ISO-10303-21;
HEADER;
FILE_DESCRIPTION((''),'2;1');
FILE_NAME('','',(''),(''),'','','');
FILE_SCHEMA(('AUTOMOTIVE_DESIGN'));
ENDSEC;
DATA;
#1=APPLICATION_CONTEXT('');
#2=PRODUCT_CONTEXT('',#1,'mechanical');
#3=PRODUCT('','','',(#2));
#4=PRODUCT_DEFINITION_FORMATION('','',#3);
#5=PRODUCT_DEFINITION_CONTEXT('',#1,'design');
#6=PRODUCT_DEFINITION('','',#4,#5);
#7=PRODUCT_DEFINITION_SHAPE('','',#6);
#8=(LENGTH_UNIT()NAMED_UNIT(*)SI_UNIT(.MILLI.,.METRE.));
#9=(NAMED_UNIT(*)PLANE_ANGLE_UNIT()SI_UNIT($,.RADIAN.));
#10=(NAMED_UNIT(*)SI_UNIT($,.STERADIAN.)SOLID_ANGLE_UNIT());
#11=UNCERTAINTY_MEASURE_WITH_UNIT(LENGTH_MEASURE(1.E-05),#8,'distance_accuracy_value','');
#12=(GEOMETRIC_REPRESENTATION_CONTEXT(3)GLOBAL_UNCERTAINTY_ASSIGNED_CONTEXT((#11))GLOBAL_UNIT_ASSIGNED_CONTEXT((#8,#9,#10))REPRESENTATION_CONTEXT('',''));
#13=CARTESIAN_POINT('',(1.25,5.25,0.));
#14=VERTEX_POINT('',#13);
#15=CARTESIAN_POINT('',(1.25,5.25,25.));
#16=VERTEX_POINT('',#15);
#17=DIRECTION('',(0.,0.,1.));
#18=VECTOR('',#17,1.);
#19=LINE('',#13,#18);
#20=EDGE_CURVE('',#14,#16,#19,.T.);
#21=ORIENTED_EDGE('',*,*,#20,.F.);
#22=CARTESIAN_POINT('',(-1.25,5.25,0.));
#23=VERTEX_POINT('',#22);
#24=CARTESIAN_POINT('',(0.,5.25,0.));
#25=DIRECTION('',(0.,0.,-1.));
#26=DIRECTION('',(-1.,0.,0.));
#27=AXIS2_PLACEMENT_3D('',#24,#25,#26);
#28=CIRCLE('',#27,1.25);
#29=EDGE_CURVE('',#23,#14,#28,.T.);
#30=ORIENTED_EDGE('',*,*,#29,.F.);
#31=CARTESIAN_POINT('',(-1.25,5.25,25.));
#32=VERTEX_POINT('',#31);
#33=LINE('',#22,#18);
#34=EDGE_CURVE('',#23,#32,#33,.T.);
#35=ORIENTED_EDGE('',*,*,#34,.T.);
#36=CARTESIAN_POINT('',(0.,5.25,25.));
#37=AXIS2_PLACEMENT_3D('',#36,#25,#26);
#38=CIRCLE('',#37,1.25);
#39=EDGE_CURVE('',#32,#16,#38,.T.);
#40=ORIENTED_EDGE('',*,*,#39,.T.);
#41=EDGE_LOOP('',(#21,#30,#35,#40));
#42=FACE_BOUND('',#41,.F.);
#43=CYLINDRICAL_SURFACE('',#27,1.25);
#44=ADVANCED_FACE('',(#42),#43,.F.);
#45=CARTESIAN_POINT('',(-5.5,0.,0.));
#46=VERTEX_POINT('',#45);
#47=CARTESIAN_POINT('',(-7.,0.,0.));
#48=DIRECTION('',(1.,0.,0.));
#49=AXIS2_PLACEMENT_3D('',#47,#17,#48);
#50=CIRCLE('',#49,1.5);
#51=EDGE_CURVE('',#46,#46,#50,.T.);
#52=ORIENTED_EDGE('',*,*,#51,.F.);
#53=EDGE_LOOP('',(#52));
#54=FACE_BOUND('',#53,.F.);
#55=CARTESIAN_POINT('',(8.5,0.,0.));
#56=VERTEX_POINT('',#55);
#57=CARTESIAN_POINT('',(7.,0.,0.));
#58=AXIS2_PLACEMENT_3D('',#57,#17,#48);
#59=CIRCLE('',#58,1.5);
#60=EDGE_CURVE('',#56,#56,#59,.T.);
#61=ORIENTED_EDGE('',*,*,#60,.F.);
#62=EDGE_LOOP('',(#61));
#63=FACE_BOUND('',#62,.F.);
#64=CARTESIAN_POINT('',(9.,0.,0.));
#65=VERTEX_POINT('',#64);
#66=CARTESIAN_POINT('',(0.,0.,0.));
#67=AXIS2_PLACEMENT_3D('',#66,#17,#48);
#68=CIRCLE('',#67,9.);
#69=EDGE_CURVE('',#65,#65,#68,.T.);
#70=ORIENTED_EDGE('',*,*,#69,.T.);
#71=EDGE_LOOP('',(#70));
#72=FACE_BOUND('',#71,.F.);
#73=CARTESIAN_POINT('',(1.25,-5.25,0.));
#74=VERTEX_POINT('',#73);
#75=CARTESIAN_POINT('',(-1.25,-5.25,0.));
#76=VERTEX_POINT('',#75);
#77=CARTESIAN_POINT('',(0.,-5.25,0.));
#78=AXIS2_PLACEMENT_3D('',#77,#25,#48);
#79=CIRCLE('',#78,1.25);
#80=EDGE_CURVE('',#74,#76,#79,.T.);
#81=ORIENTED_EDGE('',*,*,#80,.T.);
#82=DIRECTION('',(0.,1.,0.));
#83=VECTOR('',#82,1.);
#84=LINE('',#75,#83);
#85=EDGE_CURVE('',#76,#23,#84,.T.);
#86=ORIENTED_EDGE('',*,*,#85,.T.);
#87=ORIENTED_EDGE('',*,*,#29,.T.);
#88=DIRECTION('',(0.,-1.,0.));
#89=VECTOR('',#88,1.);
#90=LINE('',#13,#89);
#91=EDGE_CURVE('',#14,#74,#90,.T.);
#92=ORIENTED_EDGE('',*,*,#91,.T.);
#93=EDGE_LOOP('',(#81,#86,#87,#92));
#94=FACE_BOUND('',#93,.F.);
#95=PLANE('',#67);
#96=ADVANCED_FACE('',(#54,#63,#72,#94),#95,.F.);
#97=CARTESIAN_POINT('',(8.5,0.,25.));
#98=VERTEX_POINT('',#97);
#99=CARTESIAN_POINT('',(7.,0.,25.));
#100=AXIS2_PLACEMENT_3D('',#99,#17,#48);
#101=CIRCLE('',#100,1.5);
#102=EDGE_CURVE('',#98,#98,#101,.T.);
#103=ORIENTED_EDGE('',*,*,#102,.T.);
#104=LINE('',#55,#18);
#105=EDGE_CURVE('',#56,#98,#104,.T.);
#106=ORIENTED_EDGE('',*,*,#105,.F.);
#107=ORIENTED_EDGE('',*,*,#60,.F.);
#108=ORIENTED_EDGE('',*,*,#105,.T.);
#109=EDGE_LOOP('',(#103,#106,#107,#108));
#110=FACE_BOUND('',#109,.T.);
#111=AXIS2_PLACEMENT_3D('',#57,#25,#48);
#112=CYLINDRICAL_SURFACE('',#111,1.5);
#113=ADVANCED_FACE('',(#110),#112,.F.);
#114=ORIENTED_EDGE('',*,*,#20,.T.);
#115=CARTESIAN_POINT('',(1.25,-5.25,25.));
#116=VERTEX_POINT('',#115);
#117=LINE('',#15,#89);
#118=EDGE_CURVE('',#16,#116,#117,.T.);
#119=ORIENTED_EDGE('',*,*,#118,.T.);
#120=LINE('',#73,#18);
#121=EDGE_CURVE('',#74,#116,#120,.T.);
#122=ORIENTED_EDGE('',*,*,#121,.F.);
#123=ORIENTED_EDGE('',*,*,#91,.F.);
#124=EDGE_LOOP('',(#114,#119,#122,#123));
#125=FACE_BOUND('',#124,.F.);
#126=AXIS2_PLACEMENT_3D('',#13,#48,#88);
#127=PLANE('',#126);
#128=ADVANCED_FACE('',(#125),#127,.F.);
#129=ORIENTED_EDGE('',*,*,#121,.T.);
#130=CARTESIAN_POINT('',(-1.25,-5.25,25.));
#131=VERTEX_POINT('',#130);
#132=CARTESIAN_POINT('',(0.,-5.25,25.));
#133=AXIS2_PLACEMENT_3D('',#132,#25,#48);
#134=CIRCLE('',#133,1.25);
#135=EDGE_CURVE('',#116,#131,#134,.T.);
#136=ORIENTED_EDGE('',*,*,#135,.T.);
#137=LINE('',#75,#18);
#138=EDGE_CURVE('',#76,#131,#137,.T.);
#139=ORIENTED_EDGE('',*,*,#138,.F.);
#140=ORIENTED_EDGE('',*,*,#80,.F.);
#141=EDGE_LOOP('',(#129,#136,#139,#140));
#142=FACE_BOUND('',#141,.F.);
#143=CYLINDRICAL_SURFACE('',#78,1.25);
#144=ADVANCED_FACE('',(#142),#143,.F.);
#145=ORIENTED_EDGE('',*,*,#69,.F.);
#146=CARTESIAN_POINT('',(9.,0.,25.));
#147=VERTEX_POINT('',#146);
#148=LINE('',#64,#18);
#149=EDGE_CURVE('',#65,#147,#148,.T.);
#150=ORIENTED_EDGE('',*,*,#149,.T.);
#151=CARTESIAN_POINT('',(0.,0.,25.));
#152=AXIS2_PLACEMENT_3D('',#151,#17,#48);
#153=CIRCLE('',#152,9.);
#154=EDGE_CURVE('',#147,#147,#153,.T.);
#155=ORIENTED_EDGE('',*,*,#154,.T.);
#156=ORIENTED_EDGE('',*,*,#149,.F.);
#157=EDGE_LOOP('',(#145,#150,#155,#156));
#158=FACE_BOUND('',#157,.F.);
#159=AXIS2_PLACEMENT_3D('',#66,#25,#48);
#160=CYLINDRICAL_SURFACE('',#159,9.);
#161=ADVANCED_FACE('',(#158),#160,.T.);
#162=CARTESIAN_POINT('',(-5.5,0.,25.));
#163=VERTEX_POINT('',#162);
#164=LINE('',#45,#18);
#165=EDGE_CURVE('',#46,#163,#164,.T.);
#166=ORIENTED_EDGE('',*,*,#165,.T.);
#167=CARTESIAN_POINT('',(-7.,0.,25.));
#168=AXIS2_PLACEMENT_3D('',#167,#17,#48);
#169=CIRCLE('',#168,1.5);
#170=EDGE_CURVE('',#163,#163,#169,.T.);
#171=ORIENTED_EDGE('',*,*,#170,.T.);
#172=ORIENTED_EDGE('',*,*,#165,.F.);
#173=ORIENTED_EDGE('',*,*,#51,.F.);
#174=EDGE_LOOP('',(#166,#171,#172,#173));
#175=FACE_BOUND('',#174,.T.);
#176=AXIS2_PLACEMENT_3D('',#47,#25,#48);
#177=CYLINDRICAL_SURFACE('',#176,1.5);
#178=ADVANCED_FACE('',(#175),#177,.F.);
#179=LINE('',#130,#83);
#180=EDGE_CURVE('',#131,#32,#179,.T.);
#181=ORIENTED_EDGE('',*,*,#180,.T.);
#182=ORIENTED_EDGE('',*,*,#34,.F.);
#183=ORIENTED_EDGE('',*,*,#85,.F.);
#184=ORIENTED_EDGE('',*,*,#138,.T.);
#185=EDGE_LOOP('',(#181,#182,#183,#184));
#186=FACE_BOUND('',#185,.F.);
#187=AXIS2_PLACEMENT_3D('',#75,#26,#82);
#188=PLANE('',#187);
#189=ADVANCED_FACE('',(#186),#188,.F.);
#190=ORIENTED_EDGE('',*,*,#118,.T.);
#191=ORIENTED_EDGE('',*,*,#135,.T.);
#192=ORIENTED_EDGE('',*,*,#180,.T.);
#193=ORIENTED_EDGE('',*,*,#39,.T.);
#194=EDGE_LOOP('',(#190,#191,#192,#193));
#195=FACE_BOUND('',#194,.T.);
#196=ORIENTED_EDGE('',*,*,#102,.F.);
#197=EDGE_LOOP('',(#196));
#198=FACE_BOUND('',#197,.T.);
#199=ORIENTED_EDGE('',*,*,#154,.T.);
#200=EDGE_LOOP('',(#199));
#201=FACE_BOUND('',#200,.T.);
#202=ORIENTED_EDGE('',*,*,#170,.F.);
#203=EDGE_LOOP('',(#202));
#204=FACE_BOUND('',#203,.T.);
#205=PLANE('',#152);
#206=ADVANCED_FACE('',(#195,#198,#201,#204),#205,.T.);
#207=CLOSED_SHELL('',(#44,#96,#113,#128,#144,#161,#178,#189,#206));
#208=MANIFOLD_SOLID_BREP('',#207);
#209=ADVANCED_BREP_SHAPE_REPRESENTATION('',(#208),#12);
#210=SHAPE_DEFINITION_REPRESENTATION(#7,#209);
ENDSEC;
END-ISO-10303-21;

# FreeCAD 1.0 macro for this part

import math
import FreeCAD as App
import Part
import Sketcher
Q = App.Units.Quantity

doc = App.newDocument("Part")
body = doc.addObject("PartDesign::Body", "Body")

# Sketch on XY plane
sketch1 = body.newObject("Sketcher::SketchObject", "Sketch")
sketch1.AttachmentSupport = (doc.getObject("XY_Plane"), [""])
sketch1.MapMode = "FlatFace"
sketch1.addGeometry([
    Part.Circle(App.Vector(0, 0, 0), App.Vector(0, 0, 1), 9),  # 0
    Part.Circle(App.Vector(-7, 0, 0), App.Vector(0, 0, 1), 1.5),  # 1
    Part.LineSegment(App.Vector(-1.2, -5.2, 0), App.Vector(-1.2, 5.2, 0)),  # 2
    Part.ArcOfCircle(Part.Circle(App.Vector(0, 5.2, 0), App.Vector(0, 0, 1), 1.2), math.radians(0), math.radians(180)),  # 3
    Part.LineSegment(App.Vector(1.2, 5.2, 0), App.Vector(1.2, -5.2, 0)),  # 4
    Part.ArcOfCircle(Part.Circle(App.Vector(0, -5.2, 0), App.Vector(0, 0, 1), 1.2), math.radians(180), math.radians(360)),  # 5
    Part.Circle(App.Vector(7, 0, 0), App.Vector(0, 0, 1), 1.5),  # 6
], False)
sketch1.addConstraint([
    Sketcher.Constraint("Tangent", 2, 2, 3, 2),
    Sketcher.Constraint("Tangent", 3, 1, 4, 1),
    Sketcher.Constraint("Tangent", 4, 2, 5, 2),
    Sketcher.Constraint("Tangent", 5, 1, 2, 1),
    Sketcher.Constraint("Vertical", 2),
    Sketcher.Constraint("Vertical", 4),
    Sketcher.Constraint("Coincident", 0, 3, -1, 1),
    Sketcher.Constraint("Equal", 1, 6),
    Sketcher.Constraint("Symmetric", 3, 3, 5, 3, -1, 1),
    Sketcher.Constraint("Symmetric", 1, 3, 6, 3, -1, 1),
    Sketcher.Constraint("PointOnObject", 1, 3, -1),
    Sketcher.Constraint("Diameter", 0, Q("18 mm")),
    Sketcher.Constraint("Diameter", 1, Q("3 mm")),
    Sketcher.Constraint("Radius", 3, Q("1.25 mm")),
    Sketcher.Constraint("DistanceY", 2, 1, 2, 2, Q("10.5 mm")),
    Sketcher.Constraint("DistanceX", 1, 3, -1, 1, Q("7 mm")),
])
pad1 = body.newObject("PartDesign::Pad", "Pad")
pad1.Profile = sketch1
pad1.Length = 25

doc.recompute()
